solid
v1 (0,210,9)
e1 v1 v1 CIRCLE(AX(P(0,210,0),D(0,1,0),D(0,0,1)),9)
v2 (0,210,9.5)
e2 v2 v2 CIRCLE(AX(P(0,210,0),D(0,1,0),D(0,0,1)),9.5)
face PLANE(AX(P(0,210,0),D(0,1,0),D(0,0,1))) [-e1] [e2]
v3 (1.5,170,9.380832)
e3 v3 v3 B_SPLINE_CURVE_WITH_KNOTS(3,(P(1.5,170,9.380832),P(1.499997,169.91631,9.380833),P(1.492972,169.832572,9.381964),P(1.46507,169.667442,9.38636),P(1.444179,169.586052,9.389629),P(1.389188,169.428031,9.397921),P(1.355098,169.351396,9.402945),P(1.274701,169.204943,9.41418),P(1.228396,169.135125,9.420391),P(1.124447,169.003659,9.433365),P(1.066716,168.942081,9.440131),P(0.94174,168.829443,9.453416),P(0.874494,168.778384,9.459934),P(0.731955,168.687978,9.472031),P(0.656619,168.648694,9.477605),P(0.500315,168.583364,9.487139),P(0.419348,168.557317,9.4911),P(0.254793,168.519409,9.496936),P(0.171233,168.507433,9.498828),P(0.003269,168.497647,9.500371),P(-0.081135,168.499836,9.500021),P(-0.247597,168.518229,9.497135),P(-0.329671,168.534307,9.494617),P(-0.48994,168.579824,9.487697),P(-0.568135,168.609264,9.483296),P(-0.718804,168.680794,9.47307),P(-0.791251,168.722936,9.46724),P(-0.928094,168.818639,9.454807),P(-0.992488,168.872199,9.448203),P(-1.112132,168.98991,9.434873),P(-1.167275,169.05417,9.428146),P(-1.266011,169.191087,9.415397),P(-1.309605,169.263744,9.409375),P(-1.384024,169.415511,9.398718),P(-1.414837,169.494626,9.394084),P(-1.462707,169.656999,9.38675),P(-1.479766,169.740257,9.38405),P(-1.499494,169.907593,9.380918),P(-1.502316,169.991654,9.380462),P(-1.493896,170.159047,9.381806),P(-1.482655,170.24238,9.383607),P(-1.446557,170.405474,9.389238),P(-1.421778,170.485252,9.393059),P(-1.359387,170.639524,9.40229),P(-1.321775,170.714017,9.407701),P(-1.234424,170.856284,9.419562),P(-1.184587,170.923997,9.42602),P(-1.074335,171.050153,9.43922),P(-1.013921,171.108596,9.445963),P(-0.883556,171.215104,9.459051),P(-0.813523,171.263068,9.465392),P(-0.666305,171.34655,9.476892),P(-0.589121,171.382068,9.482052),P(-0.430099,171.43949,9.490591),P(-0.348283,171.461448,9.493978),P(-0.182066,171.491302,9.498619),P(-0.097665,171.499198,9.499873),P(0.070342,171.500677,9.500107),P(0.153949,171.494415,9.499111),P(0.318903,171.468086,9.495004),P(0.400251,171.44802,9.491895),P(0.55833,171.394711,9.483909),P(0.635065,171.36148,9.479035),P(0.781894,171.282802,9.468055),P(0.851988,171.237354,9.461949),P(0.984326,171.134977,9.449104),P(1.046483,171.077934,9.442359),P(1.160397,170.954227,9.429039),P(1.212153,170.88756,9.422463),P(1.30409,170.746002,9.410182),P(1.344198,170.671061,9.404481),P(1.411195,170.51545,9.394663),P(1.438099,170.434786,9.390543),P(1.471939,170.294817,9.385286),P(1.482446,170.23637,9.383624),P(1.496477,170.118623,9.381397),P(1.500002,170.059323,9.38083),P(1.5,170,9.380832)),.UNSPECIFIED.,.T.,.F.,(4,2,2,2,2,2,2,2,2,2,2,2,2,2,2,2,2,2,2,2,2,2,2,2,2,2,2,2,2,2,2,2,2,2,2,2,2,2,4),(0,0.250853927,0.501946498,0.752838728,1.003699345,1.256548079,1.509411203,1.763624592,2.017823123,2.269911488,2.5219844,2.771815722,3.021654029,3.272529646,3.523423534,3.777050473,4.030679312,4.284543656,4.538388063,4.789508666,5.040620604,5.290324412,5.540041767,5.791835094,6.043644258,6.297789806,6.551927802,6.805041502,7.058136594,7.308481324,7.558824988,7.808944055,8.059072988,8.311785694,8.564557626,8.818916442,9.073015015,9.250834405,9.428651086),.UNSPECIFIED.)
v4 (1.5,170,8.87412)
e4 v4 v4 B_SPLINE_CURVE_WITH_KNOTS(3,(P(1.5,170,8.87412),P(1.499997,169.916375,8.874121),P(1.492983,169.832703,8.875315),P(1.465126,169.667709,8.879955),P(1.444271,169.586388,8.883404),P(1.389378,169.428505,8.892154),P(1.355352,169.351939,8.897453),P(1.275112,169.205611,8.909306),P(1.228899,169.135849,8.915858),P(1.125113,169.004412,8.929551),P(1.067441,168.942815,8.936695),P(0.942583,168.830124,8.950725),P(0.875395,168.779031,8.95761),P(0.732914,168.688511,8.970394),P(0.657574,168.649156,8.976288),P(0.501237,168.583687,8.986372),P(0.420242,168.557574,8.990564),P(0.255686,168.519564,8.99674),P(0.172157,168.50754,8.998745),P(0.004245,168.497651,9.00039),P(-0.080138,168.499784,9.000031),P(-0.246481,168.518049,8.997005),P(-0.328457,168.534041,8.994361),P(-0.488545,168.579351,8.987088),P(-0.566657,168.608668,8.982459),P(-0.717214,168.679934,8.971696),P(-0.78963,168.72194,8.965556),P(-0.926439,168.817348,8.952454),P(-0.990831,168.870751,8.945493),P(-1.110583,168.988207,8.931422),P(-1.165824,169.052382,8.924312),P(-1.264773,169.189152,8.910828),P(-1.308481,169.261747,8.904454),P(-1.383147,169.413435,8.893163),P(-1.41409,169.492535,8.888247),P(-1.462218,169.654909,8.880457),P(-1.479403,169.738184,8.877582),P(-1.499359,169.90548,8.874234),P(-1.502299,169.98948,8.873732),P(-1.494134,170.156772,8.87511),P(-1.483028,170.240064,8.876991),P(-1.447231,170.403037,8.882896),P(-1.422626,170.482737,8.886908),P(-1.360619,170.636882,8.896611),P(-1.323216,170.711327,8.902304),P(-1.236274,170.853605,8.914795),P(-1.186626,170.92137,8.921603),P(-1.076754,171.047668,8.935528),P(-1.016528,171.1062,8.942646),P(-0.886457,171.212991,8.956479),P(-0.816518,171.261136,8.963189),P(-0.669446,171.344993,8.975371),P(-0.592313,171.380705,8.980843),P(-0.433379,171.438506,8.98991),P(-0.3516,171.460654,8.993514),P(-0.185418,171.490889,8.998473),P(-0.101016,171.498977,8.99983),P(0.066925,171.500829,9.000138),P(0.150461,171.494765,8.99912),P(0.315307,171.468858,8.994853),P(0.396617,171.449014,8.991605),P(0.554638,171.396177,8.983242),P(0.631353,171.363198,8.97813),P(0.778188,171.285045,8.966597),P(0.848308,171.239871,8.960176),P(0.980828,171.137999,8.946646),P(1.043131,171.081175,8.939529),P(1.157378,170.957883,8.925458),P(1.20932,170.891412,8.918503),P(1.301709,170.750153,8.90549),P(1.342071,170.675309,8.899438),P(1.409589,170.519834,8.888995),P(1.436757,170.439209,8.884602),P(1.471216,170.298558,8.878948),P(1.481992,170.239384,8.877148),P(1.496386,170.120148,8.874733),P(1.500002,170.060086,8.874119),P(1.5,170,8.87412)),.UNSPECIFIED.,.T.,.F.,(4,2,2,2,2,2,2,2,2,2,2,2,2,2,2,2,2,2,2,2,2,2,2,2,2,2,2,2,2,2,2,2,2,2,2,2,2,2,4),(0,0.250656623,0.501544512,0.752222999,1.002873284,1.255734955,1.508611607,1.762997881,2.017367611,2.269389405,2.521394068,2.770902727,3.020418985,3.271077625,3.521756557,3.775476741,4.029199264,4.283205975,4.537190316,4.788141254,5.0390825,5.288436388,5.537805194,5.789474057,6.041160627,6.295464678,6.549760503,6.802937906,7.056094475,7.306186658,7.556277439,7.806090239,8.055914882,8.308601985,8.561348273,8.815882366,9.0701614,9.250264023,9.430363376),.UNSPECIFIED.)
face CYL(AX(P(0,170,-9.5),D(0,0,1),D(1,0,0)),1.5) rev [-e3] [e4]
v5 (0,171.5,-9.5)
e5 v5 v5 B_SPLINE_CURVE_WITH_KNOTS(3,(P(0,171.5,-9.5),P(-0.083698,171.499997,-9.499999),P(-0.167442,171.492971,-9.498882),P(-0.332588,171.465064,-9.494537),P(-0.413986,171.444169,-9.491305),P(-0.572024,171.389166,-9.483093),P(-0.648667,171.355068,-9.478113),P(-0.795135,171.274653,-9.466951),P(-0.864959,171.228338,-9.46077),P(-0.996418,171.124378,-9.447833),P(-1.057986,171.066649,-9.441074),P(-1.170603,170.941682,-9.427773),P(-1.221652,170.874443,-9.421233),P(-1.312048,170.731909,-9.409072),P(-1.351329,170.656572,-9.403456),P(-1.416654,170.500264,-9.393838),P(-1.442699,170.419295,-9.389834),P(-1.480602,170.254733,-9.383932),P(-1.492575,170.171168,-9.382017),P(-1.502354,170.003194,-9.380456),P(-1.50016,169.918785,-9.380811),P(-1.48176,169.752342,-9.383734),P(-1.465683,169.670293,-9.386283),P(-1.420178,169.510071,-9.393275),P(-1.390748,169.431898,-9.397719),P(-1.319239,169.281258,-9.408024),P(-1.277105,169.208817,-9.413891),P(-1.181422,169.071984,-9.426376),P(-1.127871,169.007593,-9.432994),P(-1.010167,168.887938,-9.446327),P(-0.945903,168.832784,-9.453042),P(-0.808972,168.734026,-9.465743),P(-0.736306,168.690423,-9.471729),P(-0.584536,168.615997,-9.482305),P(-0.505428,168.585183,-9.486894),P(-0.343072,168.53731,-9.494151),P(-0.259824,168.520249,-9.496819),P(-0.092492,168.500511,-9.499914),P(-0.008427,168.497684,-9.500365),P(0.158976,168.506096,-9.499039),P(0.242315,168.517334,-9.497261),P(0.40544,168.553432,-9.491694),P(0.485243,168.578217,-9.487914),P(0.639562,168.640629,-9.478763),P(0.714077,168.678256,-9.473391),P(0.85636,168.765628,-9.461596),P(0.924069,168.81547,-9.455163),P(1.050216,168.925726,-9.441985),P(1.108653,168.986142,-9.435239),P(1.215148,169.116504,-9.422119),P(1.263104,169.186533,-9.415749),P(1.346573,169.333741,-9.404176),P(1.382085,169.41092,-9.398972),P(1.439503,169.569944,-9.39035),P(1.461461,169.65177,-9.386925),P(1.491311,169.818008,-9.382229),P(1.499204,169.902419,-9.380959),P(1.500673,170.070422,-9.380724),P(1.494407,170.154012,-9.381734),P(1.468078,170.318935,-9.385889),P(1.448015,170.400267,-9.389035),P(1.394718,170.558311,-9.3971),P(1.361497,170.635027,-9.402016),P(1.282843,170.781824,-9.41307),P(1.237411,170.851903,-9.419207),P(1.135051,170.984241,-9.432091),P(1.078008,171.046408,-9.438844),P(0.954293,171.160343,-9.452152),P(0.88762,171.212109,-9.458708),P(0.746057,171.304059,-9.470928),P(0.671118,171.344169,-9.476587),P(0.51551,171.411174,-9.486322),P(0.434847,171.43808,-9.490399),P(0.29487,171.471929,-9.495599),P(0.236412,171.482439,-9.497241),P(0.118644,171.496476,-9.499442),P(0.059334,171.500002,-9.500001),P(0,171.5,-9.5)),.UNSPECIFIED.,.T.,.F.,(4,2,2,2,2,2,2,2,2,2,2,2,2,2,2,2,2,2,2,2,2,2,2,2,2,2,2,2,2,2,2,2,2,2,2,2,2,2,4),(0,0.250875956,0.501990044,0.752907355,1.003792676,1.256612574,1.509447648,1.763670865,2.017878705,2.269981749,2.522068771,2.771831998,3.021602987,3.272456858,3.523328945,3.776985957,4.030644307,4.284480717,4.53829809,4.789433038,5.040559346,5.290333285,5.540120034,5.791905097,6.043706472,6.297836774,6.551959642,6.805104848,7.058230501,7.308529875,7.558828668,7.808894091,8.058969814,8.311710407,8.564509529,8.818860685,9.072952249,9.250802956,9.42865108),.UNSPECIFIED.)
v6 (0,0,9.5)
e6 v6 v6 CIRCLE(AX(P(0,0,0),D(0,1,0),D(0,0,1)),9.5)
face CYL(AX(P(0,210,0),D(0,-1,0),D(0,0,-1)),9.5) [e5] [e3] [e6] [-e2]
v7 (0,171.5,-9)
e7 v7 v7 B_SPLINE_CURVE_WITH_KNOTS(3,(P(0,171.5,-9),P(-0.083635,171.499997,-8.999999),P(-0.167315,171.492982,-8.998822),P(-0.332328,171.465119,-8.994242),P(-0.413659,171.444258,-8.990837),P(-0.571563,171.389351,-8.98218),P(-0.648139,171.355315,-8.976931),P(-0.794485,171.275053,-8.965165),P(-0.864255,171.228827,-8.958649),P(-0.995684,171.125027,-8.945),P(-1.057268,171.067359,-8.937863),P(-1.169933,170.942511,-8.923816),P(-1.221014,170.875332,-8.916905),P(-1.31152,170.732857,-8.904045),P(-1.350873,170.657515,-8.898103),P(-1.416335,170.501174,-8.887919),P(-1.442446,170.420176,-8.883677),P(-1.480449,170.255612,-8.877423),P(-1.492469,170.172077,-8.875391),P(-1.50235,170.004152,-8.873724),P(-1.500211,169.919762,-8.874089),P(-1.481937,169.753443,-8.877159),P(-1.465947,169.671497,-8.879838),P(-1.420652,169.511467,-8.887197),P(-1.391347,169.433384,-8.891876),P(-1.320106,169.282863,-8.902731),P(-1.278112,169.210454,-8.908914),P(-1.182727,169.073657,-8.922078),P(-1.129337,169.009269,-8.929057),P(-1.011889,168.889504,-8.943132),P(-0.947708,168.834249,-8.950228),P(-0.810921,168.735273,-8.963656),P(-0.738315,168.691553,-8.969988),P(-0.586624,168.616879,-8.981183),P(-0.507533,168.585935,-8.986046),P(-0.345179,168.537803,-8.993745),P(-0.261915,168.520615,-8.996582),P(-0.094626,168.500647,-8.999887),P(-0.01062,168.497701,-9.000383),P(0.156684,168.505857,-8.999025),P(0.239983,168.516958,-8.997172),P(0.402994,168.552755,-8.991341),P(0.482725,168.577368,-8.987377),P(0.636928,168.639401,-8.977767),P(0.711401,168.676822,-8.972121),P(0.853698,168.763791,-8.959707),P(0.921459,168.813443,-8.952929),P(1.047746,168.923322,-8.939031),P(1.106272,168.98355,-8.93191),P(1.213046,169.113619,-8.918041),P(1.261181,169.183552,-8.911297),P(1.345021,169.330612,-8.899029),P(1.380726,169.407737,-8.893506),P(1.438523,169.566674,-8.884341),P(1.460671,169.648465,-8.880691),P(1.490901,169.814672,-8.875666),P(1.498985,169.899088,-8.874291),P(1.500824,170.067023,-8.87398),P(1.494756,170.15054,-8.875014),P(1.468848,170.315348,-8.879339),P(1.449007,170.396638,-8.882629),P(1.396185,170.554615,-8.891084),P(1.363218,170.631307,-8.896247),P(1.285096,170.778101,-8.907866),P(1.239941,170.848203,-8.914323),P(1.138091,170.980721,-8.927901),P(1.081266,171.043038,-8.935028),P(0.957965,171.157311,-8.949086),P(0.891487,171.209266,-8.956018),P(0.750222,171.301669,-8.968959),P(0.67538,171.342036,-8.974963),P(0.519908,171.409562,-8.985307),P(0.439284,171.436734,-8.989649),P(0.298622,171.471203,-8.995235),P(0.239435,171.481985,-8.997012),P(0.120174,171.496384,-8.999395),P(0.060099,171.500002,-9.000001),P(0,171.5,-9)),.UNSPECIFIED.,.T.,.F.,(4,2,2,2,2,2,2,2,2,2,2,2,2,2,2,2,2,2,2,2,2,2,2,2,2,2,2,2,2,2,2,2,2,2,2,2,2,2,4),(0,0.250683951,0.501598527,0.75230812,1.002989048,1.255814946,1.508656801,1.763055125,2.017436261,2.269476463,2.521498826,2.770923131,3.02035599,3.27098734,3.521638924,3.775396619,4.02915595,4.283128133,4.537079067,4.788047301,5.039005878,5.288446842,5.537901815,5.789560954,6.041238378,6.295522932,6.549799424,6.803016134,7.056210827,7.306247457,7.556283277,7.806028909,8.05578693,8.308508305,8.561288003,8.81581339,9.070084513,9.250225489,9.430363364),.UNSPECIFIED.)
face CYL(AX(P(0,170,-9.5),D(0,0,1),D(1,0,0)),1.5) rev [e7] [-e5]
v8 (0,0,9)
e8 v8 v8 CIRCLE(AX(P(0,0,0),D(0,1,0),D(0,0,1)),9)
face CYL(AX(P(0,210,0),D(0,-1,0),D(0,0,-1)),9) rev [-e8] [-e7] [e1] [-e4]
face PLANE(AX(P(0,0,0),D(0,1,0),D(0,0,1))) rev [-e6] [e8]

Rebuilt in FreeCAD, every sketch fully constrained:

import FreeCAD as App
import Part
import Sketcher

V = App.Vector

doc = App.newDocument("Part")
body = doc.addObject("PartDesign::Body", "Body")

# Sketch on XZ plane
sketch1 = body.newObject("Sketcher::SketchObject", "Sketch")
sketch1.AttachmentSupport = (doc.getObject("XZ_Plane"), [""])
sketch1.MapMode = "FlatFace"
sketch1.addGeometry(Part.Circle(V(0, 0, 0), V(0, 0, 1), 10), False)
sketch1.addGeometry(Part.Circle(V(0, 0, 0), V(0, 0, 1), 9), False)
sketch1.addConstraint(Sketcher.Constraint("Coincident", 0, 3, -1, 1))
sketch1.addConstraint(Sketcher.Constraint("Coincident", 1, 3, -1, 1))
sketch1.addConstraint(Sketcher.Constraint("Diameter", 0, 19.0))
sketch1.addConstraint(Sketcher.Constraint("Diameter", 1, 18.0))
pad1 = body.newObject("PartDesign::Pad", "Pad")
pad1.Profile = sketch1
pad1.Length = 210
pad1.Reversed = True

# Sketch on XY plane
sketch2 = body.newObject("Sketcher::SketchObject", "Sketch001")
sketch2.AttachmentSupport = (doc.getObject("XY_Plane"), [""])
sketch2.MapMode = "FlatFace"
sketch2.addGeometry(Part.Circle(V(0, 170, 0), V(0, 0, 1), 1.5), False)
sketch2.addConstraint(Sketcher.Constraint("PointOnObject", 0, 3, -2))
sketch2.addConstraint(Sketcher.Constraint("Diameter", 0, 3.0))
sketch2.addConstraint(Sketcher.Constraint("DistanceY", -1, 1, 0, 3, 170.0))
pocket1 = body.newObject("PartDesign::Pocket", "Pocket")
pocket1.Profile = sketch2
pocket1.Type = "ThroughAll"
pocket1.Midplane = True

doc.recompute()
